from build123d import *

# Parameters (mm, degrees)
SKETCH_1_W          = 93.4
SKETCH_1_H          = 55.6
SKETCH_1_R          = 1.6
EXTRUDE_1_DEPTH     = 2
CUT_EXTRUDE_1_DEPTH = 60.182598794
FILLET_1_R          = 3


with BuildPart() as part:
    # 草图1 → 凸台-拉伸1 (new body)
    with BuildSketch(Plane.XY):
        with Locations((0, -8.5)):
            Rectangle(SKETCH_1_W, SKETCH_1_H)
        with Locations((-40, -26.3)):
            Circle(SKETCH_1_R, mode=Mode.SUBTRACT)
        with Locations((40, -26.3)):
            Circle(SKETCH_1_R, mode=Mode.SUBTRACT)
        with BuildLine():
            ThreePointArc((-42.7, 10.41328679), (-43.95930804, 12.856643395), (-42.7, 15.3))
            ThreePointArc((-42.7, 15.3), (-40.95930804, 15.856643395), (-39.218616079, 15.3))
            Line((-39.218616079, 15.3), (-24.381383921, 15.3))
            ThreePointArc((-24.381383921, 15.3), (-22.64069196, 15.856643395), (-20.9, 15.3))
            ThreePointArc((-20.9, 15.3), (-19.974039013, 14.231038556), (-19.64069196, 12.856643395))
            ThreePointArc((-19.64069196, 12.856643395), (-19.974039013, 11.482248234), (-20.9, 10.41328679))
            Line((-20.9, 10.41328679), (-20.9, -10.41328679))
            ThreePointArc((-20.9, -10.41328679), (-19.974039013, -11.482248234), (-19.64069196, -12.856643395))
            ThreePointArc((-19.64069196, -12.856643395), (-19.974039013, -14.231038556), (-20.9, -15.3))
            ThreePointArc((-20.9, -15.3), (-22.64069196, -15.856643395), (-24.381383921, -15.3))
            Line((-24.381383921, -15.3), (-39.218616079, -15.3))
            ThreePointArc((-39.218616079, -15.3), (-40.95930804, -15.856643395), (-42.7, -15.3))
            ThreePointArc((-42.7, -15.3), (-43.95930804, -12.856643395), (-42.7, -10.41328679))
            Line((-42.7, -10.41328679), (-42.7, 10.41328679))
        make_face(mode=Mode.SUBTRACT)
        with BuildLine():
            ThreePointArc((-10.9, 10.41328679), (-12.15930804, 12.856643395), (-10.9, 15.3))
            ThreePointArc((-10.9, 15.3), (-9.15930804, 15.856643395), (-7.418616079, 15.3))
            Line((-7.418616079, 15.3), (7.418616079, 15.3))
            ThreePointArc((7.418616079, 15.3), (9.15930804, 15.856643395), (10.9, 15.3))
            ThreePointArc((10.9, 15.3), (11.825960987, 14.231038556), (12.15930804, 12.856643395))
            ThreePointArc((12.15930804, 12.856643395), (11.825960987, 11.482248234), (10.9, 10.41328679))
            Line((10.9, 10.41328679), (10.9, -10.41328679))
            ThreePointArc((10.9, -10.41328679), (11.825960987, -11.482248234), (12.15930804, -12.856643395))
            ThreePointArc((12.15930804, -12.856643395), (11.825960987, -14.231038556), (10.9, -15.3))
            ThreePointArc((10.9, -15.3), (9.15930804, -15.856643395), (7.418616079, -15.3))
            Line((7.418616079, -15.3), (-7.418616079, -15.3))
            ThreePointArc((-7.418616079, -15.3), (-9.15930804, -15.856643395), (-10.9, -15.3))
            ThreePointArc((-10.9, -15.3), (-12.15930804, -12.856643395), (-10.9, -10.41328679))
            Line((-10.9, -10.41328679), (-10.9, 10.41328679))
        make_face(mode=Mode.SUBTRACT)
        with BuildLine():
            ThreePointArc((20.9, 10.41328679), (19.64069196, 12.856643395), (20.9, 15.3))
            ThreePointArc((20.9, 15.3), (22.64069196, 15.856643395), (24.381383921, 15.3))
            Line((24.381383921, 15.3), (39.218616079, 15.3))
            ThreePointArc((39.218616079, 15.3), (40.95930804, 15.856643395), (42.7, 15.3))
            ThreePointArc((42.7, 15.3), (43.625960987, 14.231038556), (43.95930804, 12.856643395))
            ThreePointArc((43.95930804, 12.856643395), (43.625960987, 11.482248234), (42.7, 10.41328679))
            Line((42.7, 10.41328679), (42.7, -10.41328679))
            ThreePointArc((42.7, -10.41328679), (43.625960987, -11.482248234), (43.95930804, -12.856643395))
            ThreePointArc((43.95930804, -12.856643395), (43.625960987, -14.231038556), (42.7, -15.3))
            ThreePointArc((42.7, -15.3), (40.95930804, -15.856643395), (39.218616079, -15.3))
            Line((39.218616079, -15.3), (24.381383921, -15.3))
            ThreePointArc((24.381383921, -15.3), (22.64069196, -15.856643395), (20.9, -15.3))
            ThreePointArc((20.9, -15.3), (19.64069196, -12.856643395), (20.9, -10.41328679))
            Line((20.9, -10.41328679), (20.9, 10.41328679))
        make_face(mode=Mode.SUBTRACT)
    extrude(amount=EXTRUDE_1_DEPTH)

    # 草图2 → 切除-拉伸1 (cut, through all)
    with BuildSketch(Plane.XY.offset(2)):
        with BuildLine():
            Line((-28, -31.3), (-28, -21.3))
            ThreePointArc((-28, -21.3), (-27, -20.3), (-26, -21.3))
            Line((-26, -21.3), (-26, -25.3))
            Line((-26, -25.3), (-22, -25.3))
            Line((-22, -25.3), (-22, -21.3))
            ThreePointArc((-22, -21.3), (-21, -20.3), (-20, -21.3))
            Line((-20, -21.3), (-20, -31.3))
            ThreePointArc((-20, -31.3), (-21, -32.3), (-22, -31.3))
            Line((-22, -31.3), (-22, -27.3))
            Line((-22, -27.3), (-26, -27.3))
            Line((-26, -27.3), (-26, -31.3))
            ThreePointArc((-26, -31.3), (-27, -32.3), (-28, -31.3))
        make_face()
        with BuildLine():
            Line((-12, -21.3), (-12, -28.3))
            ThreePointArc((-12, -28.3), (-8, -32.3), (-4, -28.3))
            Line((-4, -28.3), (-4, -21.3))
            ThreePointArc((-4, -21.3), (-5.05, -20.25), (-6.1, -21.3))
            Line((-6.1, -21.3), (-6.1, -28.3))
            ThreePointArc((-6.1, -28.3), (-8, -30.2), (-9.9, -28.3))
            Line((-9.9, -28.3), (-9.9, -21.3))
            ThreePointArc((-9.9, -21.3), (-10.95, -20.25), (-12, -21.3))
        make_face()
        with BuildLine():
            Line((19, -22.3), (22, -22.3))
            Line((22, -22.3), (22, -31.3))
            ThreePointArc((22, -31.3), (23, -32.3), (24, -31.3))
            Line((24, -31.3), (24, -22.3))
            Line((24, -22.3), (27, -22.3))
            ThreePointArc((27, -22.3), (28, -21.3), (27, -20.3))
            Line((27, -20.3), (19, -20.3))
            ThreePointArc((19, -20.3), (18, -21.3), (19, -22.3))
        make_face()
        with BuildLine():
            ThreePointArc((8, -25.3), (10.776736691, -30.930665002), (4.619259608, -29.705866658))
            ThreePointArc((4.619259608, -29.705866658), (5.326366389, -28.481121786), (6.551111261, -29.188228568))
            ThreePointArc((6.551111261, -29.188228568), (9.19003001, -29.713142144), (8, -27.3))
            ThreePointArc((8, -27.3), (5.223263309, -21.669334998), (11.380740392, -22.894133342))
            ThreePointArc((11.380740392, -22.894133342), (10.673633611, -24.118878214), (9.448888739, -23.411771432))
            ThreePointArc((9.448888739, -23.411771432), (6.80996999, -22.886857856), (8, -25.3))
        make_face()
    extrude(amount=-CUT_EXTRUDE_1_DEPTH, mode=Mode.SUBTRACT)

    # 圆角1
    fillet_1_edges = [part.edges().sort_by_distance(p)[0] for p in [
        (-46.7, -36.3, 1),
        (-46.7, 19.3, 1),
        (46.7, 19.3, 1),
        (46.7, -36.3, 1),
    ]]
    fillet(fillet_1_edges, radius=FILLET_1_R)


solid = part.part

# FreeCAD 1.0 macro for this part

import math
import FreeCAD as App
import Part
import Sketcher


def edges_at(feature, points):
    """Names of the edges that pass closest to the given points."""
    edges = feature.Shape.Edges
    near = lambda p: min(range(len(edges)), key=lambda i: edges[i].distToShape(Part.Vertex(*p))[0])
    return sorted({f"Edge{near(p) + 1}" for p in points})


def add_polygon(sketch, points):
    """Adds a closed chain of lines whose ends are joined by coincident constraints."""
    first, n = sketch.GeometryCount, len(points)
    for a, b in zip(points, points[1:] + points[:1]):
        sketch.addGeometry(Part.LineSegment(App.Vector(*a, 0), App.Vector(*b, 0)), False)
    for i in range(n):
        sketch.addConstraint(Sketcher.Constraint("Coincident", first + i, 2, first + (i + 1) % n, 1))

doc = App.newDocument("Part")
body = doc.addObject("PartDesign::Body", "Body")

# Sketch on XY plane
sketch1 = body.newObject("Sketcher::SketchObject", "Sketch")
sketch1.AttachmentSupport = (doc.getObject("XY_Plane"), [""])
sketch1.MapMode = "FlatFace"
add_polygon(sketch1, [(-46.7, 19.3), (-46.7, -36.3), (46.7, -36.3), (46.7, 19.3)])  # lines 0-3
sketch1.addGeometry(Part.Circle(App.Vector(-40, -26.3, 0), App.Vector(0, 0, 1), 1.6), False)  # 4
sketch1.addGeometry(Part.Circle(App.Vector(40, -26.3, 0), App.Vector(0, 0, 1), 1.6), False)  # 5
sketch1.addGeometry(Part.LineSegment(App.Vector(-42.7, -10.4, 0), App.Vector(-42.7, 10.4, 0)), False)  # 6
sketch1.addGeometry(Part.ArcOfCircle(Part.Circle(App.Vector(-41, 12.9, 0), App.Vector(0, 0, 1), 3), math.radians(125), math.radians(235)), False)  # 7
sketch1.addGeometry(Part.ArcOfCircle(Part.Circle(App.Vector(-41, 12.9, 0), App.Vector(0, 0, 1), 3), math.radians(55), math.radians(125)), False)  # 8
sketch1.addGeometry(Part.LineSegment(App.Vector(-39.2, 15.3, 0), App.Vector(-24.4, 15.3, 0)), False)  # 9
sketch1.addGeometry(Part.ArcOfCircle(Part.Circle(App.Vector(-22.6, 12.9, 0), App.Vector(0, 0, 1), 3), math.radians(55), math.radians(125)), False)  # 10
sketch1.addGeometry(Part.ArcOfCircle(Part.Circle(App.Vector(-22.6, 12.9, 0), App.Vector(0, 0, 1), 3), math.radians(0), math.radians(55)), False)  # 11
sketch1.addGeometry(Part.ArcOfCircle(Part.Circle(App.Vector(-22.6, 12.9, 0), App.Vector(0, 0, 1), 3), math.radians(-55), math.radians(0)), False)  # 12
sketch1.addGeometry(Part.LineSegment(App.Vector(-20.9, 10.4, 0), App.Vector(-20.9, -10.4, 0)), False)  # 13
sketch1.addGeometry(Part.ArcOfCircle(Part.Circle(App.Vector(-22.6, -12.9, 0), App.Vector(0, 0, 1), 3), math.radians(0), math.radians(55)), False)  # 14
sketch1.addGeometry(Part.ArcOfCircle(Part.Circle(App.Vector(-22.6, -12.9, 0), App.Vector(0, 0, 1), 3), math.radians(-55), math.radians(0)), False)  # 15
sketch1.addGeometry(Part.ArcOfCircle(Part.Circle(App.Vector(-22.6, -12.9, 0), App.Vector(0, 0, 1), 3), math.radians(-125), math.radians(-55)), False)  # 16
sketch1.addGeometry(Part.LineSegment(App.Vector(-24.4, -15.3, 0), App.Vector(-39.2, -15.3, 0)), False)  # 17
sketch1.addGeometry(Part.ArcOfCircle(Part.Circle(App.Vector(-41, -12.9, 0), App.Vector(0, 0, 1), 3), math.radians(-125), math.radians(-55)), False)  # 18
sketch1.addGeometry(Part.ArcOfCircle(Part.Circle(App.Vector(-41, -12.9, 0), App.Vector(0, 0, 1), 3), math.radians(125), math.radians(235)), False)  # 19
sketch1.addGeometry(Part.LineSegment(App.Vector(-10.9, -10.4, 0), App.Vector(-10.9, 10.4, 0)), False)  # 20
sketch1.addGeometry(Part.ArcOfCircle(Part.Circle(App.Vector(-9.2, 12.9, 0), App.Vector(0, 0, 1), 3), math.radians(125), math.radians(235)), False)  # 21
sketch1.addGeometry(Part.ArcOfCircle(Part.Circle(App.Vector(-9.2, 12.9, 0), App.Vector(0, 0, 1), 3), math.radians(55), math.radians(125)), False)  # 22
sketch1.addGeometry(Part.LineSegment(App.Vector(-7.4, 15.3, 0), App.Vector(7.4, 15.3, 0)), False)  # 23
sketch1.addGeometry(Part.ArcOfCircle(Part.Circle(App.Vector(9.2, 12.9, 0), App.Vector(0, 0, 1), 3), math.radians(55), math.radians(125)), False)  # 24
sketch1.addGeometry(Part.ArcOfCircle(Part.Circle(App.Vector(9.2, 12.9, 0), App.Vector(0, 0, 1), 3), math.radians(0), math.radians(55)), False)  # 25
sketch1.addGeometry(Part.ArcOfCircle(Part.Circle(App.Vector(9.2, 12.9, 0), App.Vector(0, 0, 1), 3), math.radians(-55), math.radians(0)), False)  # 26
sketch1.addGeometry(Part.LineSegment(App.Vector(10.9, 10.4, 0), App.Vector(10.9, -10.4, 0)), False)  # 27
sketch1.addGeometry(Part.ArcOfCircle(Part.Circle(App.Vector(9.2, -12.9, 0), App.Vector(0, 0, 1), 3), math.radians(0), math.radians(55)), False)  # 28
sketch1.addGeometry(Part.ArcOfCircle(Part.Circle(App.Vector(9.2, -12.9, 0), App.Vector(0, 0, 1), 3), math.radians(-55), math.radians(0)), False)  # 29
sketch1.addGeometry(Part.ArcOfCircle(Part.Circle(App.Vector(9.2, -12.9, 0), App.Vector(0, 0, 1), 3), math.radians(-125), math.radians(-55)), False)  # 30
sketch1.addGeometry(Part.LineSegment(App.Vector(7.4, -15.3, 0), App.Vector(-7.4, -15.3, 0)), False)  # 31
sketch1.addGeometry(Part.ArcOfCircle(Part.Circle(App.Vector(-9.2, -12.9, 0), App.Vector(0, 0, 1), 3), math.radians(-125), math.radians(-55)), False)  # 32
sketch1.addGeometry(Part.ArcOfCircle(Part.Circle(App.Vector(-9.2, -12.9, 0), App.Vector(0, 0, 1), 3), math.radians(125), math.radians(235)), False)  # 33
sketch1.addGeometry(Part.LineSegment(App.Vector(20.9, -10.4, 0), App.Vector(20.9, 10.4, 0)), False)  # 34
sketch1.addGeometry(Part.ArcOfCircle(Part.Circle(App.Vector(22.6, 12.9, 0), App.Vector(0, 0, 1), 3), math.radians(125), math.radians(235)), False)  # 35
sketch1.addGeometry(Part.ArcOfCircle(Part.Circle(App.Vector(22.6, 12.9, 0), App.Vector(0, 0, 1), 3), math.radians(55), math.radians(125)), False)  # 36
sketch1.addGeometry(Part.LineSegment(App.Vector(24.4, 15.3, 0), App.Vector(39.2, 15.3, 0)), False)  # 37
sketch1.addGeometry(Part.ArcOfCircle(Part.Circle(App.Vector(41, 12.9, 0), App.Vector(0, 0, 1), 3), math.radians(55), math.radians(125)), False)  # 38
sketch1.addGeometry(Part.ArcOfCircle(Part.Circle(App.Vector(41, 12.9, 0), App.Vector(0, 0, 1), 3), math.radians(0), math.radians(55)), False)  # 39
sketch1.addGeometry(Part.ArcOfCircle(Part.Circle(App.Vector(41, 12.9, 0), App.Vector(0, 0, 1), 3), math.radians(-55), math.radians(0)), False)  # 40
sketch1.addGeometry(Part.LineSegment(App.Vector(42.7, 10.4, 0), App.Vector(42.7, -10.4, 0)), False)  # 41
sketch1.addGeometry(Part.ArcOfCircle(Part.Circle(App.Vector(41, -12.9, 0), App.Vector(0, 0, 1), 3), math.radians(0), math.radians(55)), False)  # 42
sketch1.addGeometry(Part.ArcOfCircle(Part.Circle(App.Vector(41, -12.9, 0), App.Vector(0, 0, 1), 3), math.radians(-55), math.radians(0)), False)  # 43
sketch1.addGeometry(Part.ArcOfCircle(Part.Circle(App.Vector(41, -12.9, 0), App.Vector(0, 0, 1), 3), math.radians(-125), math.radians(-55)), False)  # 44
sketch1.addGeometry(Part.LineSegment(App.Vector(39.2, -15.3, 0), App.Vector(24.4, -15.3, 0)), False)  # 45
sketch1.addGeometry(Part.ArcOfCircle(Part.Circle(App.Vector(22.6, -12.9, 0), App.Vector(0, 0, 1), 3), math.radians(-125), math.radians(-55)), False)  # 46
sketch1.addGeometry(Part.ArcOfCircle(Part.Circle(App.Vector(22.6, -12.9, 0), App.Vector(0, 0, 1), 3), math.radians(125), math.radians(235)), False)  # 47
sketch1.addConstraint(Sketcher.Constraint("Coincident", 6, 2, 7, 2))
sketch1.addConstraint(Sketcher.Constraint("Tangent", 7, 1, 8, 2))
sketch1.addConstraint(Sketcher.Constraint("Coincident", 8, 1, 9, 1))
sketch1.addConstraint(Sketcher.Constraint("Coincident", 9, 2, 10, 2))
sketch1.addConstraint(Sketcher.Constraint("Tangent", 10, 1, 11, 2))
sketch1.addConstraint(Sketcher.Constraint("Tangent", 11, 1, 12, 2))
sketch1.addConstraint(Sketcher.Constraint("Coincident", 12, 1, 13, 1))
sketch1.addConstraint(Sketcher.Constraint("Coincident", 13, 2, 14, 2))
sketch1.addConstraint(Sketcher.Constraint("Tangent", 14, 1, 15, 2))
sketch1.addConstraint(Sketcher.Constraint("Tangent", 15, 1, 16, 2))
sketch1.addConstraint(Sketcher.Constraint("Coincident", 16, 1, 17, 1))
sketch1.addConstraint(Sketcher.Constraint("Coincident", 17, 2, 18, 2))
sketch1.addConstraint(Sketcher.Constraint("Tangent", 18, 1, 19, 2))
sketch1.addConstraint(Sketcher.Constraint("Coincident", 19, 1, 6, 1))
sketch1.addConstraint(Sketcher.Constraint("Coincident", 20, 2, 21, 2))
sketch1.addConstraint(Sketcher.Constraint("Tangent", 21, 1, 22, 2))
sketch1.addConstraint(Sketcher.Constraint("Coincident", 22, 1, 23, 1))
sketch1.addConstraint(Sketcher.Constraint("Coincident", 23, 2, 24, 2))
sketch1.addConstraint(Sketcher.Constraint("Tangent", 24, 1, 25, 2))
sketch1.addConstraint(Sketcher.Constraint("Tangent", 25, 1, 26, 2))
sketch1.addConstraint(Sketcher.Constraint("Coincident", 26, 1, 27, 1))
sketch1.addConstraint(Sketcher.Constraint("Coincident", 27, 2, 28, 2))
sketch1.addConstraint(Sketcher.Constraint("Tangent", 28, 1, 29, 2))
sketch1.addConstraint(Sketcher.Constraint("Tangent", 29, 1, 30, 2))
sketch1.addConstraint(Sketcher.Constraint("Coincident", 30, 1, 31, 1))
sketch1.addConstraint(Sketcher.Constraint("Coincident", 31, 2, 32, 2))
sketch1.addConstraint(Sketcher.Constraint("Tangent", 32, 1, 33, 2))
sketch1.addConstraint(Sketcher.Constraint("Coincident", 33, 1, 20, 1))
sketch1.addConstraint(Sketcher.Constraint("Coincident", 34, 2, 35, 2))
sketch1.addConstraint(Sketcher.Constraint("Tangent", 35, 1, 36, 2))
sketch1.addConstraint(Sketcher.Constraint("Coincident", 36, 1, 37, 1))
sketch1.addConstraint(Sketcher.Constraint("Coincident", 37, 2, 38, 2))
sketch1.addConstraint(Sketcher.Constraint("Tangent", 38, 1, 39, 2))
sketch1.addConstraint(Sketcher.Constraint("Tangent", 39, 1, 40, 2))
sketch1.addConstraint(Sketcher.Constraint("Coincident", 40, 1, 41, 1))
sketch1.addConstraint(Sketcher.Constraint("Coincident", 41, 2, 42, 2))
sketch1.addConstraint(Sketcher.Constraint("Tangent", 42, 1, 43, 2))
sketch1.addConstraint(Sketcher.Constraint("Tangent", 43, 1, 44, 2))
sketch1.addConstraint(Sketcher.Constraint("Coincident", 44, 1, 45, 1))
sketch1.addConstraint(Sketcher.Constraint("Coincident", 45, 2, 46, 2))
sketch1.addConstraint(Sketcher.Constraint("Tangent", 46, 1, 47, 2))
sketch1.addConstraint(Sketcher.Constraint("Coincident", 47, 1, 34, 1))
sketch1.addConstraint(Sketcher.Constraint("Vertical", 0))
sketch1.addConstraint(Sketcher.Constraint("Horizontal", 1))
sketch1.addConstraint(Sketcher.Constraint("Vertical", 2))
sketch1.addConstraint(Sketcher.Constraint("Horizontal", 3))
sketch1.addConstraint(Sketcher.Constraint("Vertical", 6))
sketch1.addConstraint(Sketcher.Constraint("Horizontal", 9))
sketch1.addConstraint(Sketcher.Constraint("Vertical", 13))
sketch1.addConstraint(Sketcher.Constraint("Horizontal", 17))
sketch1.addConstraint(Sketcher.Constraint("Vertical", 20))
sketch1.addConstraint(Sketcher.Constraint("Horizontal", 23))
sketch1.addConstraint(Sketcher.Constraint("Vertical", 27))
sketch1.addConstraint(Sketcher.Constraint("Horizontal", 31))
sketch1.addConstraint(Sketcher.Constraint("Vertical", 34))
sketch1.addConstraint(Sketcher.Constraint("Horizontal", 37))
sketch1.addConstraint(Sketcher.Constraint("Vertical", 41))
sketch1.addConstraint(Sketcher.Constraint("Horizontal", 45))
sketch1.addConstraint(Sketcher.Constraint("Coincident", 12, 3, 10, 3))
sketch1.addConstraint(Sketcher.Constraint("Coincident", 16, 3, 14, 3))
sketch1.addConstraint(Sketcher.Constraint("Coincident", 26, 3, 24, 3))
sketch1.addConstraint(Sketcher.Constraint("Coincident", 30, 3, 28, 3))
sketch1.addConstraint(Sketcher.Constraint("Coincident", 40, 3, 38, 3))
sketch1.addConstraint(Sketcher.Constraint("Coincident", 44, 3, 42, 3))
sketch1.addConstraint(Sketcher.Constraint("Equal", 4, 5))
sketch1.addConstraint(Sketcher.Constraint("Equal", 7, 8))
sketch1.addConstraint(Sketcher.Constraint("Equal", 8, 10))
sketch1.addConstraint(Sketcher.Constraint("Equal", 12, 14))
sketch1.addConstraint(Sketcher.Constraint("Equal", 16, 18))
sketch1.addConstraint(Sketcher.Constraint("Equal", 18, 19))
sketch1.addConstraint(Sketcher.Constraint("Equal", 19, 21))
sketch1.addConstraint(Sketcher.Constraint("Equal", 21, 22))
sketch1.addConstraint(Sketcher.Constraint("Equal", 22, 24))
sketch1.addConstraint(Sketcher.Constraint("Equal", 26, 28))
sketch1.addConstraint(Sketcher.Constraint("Equal", 30, 32))
sketch1.addConstraint(Sketcher.Constraint("Equal", 32, 33))
sketch1.addConstraint(Sketcher.Constraint("Equal", 33, 35))
sketch1.addConstraint(Sketcher.Constraint("Equal", 35, 36))
sketch1.addConstraint(Sketcher.Constraint("Equal", 36, 38))
sketch1.addConstraint(Sketcher.Constraint("Equal", 40, 42))
sketch1.addConstraint(Sketcher.Constraint("Equal", 44, 46))
sketch1.addConstraint(Sketcher.Constraint("Equal", 46, 47))
sketch1.addConstraint(Sketcher.Constraint("Symmetric", 21, 3, 28, 3, -1, 1))
sketch1.addConstraint(Sketcher.Constraint("Symmetric", 24, 3, 32, 3, -1, 1))
sketch1.addConstraint(Sketcher.Constraint("Symmetric", 14, 3, 35, 3, -1, 1))
sketch1.addConstraint(Sketcher.Constraint("Symmetric", 18, 3, 38, 3, -1, 1))
sketch1.addConstraint(Sketcher.Constraint("Symmetric", 7, 3, 42, 3, -1, 1))
sketch1.addConstraint(Sketcher.Constraint("Symmetric", 10, 3, 46, 3, -1, 1))
sketch1.addConstraint(Sketcher.Constraint("Symmetric", 4, 3, 5, 3, -2))
sketch1.addConstraint(Sketcher.Constraint("Symmetric", 21, 3, 24, 3, -2))
sketch1.addConstraint(Sketcher.Constraint("Symmetric", 10, 3, 35, 3, -2))
sketch1.addConstraint(Sketcher.Constraint("Symmetric", 7, 3, 38, 3, -2))
sketch1.addConstraint(Sketcher.Constraint("Horizontal", 8, 3, 10, 3))
sketch1.addConstraint(Sketcher.Constraint("Horizontal", 12, 3, 21, 3))
sketch1.addConstraint(Sketcher.Constraint("Horizontal", 7, 1, 8, 1))
sketch1.addConstraint(Sketcher.Constraint("Horizontal", 9, 2, 10, 1))
sketch1.addConstraint(Sketcher.Constraint("Horizontal", 40, 3, 11, 1))
sketch1.addConstraint(Sketcher.Constraint("Horizontal", 6, 2, 12, 1))
sketch1.addConstraint(Sketcher.Constraint("Horizontal", 47, 3, 14, 1))
sketch1.addConstraint(Sketcher.Constraint("Horizontal", 15, 1, 16, 1))
sketch1.addConstraint(Sketcher.Constraint("Horizontal", 17, 2, 18, 1))
sketch1.addConstraint(Sketcher.Constraint("Horizontal", 12, 1, 20, 2))
sketch1.addConstraint(Sketcher.Constraint("Horizontal", 10, 1, 21, 1))
sketch1.addConstraint(Sketcher.Constraint("Horizontal", 21, 1, 22, 1))
sketch1.addConstraint(Sketcher.Constraint("Horizontal", 23, 2, 24, 1))
sketch1.addConstraint(Sketcher.Constraint("Horizontal", 11, 1, 25, 1))
sketch1.addConstraint(Sketcher.Constraint("Horizontal", 20, 2, 26, 1))
sketch1.addConstraint(Sketcher.Constraint("Horizontal", 14, 1, 28, 1))
sketch1.addConstraint(Sketcher.Constraint("Horizontal", 18, 1, 29, 1))
sketch1.addConstraint(Sketcher.Constraint("Horizontal", 29, 1, 30, 1))
sketch1.addConstraint(Sketcher.Constraint("Horizontal", 31, 2, 32, 1))
sketch1.addConstraint(Sketcher.Constraint("Horizontal", 26, 1, 34, 2))
sketch1.addConstraint(Sketcher.Constraint("Horizontal", 24, 1, 35, 1))
sketch1.addConstraint(Sketcher.Constraint("Horizontal", 35, 1, 36, 1))
sketch1.addConstraint(Sketcher.Constraint("Horizontal", 37, 2, 38, 1))
sketch1.addConstraint(Sketcher.Constraint("Horizontal", 25, 1, 39, 1))
sketch1.addConstraint(Sketcher.Constraint("Horizontal", 34, 2, 40, 1))
sketch1.addConstraint(Sketcher.Constraint("Horizontal", 28, 1, 42, 1))
sketch1.addConstraint(Sketcher.Constraint("Horizontal", 32, 1, 43, 1))
sketch1.addConstraint(Sketcher.Constraint("Horizontal", 43, 1, 44, 1))
sketch1.addConstraint(Sketcher.Constraint("Horizontal", 45, 2, 46, 1))
sketch1.addConstraint(Sketcher.Constraint("Vertical", 6, 2, 7, 1))
sketch1.addConstraint(Sketcher.Constraint("Vertical", 13, 2, 15, 1))
sketch1.addConstraint(Sketcher.Constraint("Equal", 17, 23))
sketch1.addConstraint(Sketcher.Constraint("Radius", 7, 3.0))
sketch1.addConstraint(Sketcher.Constraint("Diameter", 4, 3.2))
sketch1.addConstraint(Sketcher.Constraint("DistanceX", 1, 1, 1, 2, 93.4))
sketch1.addConstraint(Sketcher.Constraint("DistanceY", 0, 2, 0, 1, 55.6))
sketch1.addConstraint(Sketcher.Constraint("DistanceX", 4, 3, -1, 1, 40.0))
sketch1.addConstraint(Sketcher.Constraint("DistanceY", 4, 3, -1, 1, 26.3))
sketch1.addConstraint(Sketcher.Constraint("DistanceX", 0, 2, -1, 1, 46.7))
sketch1.addConstraint(Sketcher.Constraint("DistanceY", 0, 2, -1, 1, 36.3))
sketch1.addConstraint(Sketcher.Constraint("DistanceX", 6, 2, -1, 1, 42.7))
sketch1.addConstraint(Sketcher.Constraint("DistanceY", -1, 1, 7, 1, 15.3))
sketch1.addConstraint(Sketcher.Constraint("DistanceX", 10, 1, -1, 1, 20.9))
sketch1.addConstraint(Sketcher.Constraint("DistanceX", 9, 1, 9, 2, 14.837232))
pad1 = body.newObject("PartDesign::Pad", "Pad")
pad1.Profile = sketch1
pad1.Length = 2

# Sketch on XY plane
sketch2 = body.newObject("Sketcher::SketchObject", "Sketch001")
sketch2.AttachmentSupport = (doc.getObject("XY_Plane"), [""])
sketch2.MapMode = "FlatFace"
sketch2.AttachmentOffset = App.Placement(App.Vector(0, 0, 2), App.Rotation())
sketch2.addGeometry(Part.LineSegment(App.Vector(-28, -21.3, 0), App.Vector(-28, -31.3, 0)), False)
sketch2.addGeometry(Part.ArcOfCircle(Part.Circle(App.Vector(-27, -31.3, 0), App.Vector(0, 0, 1), 1), math.radians(180), math.radians(360)), False)
sketch2.addGeometry(Part.LineSegment(App.Vector(-26, -31.3, 0), App.Vector(-26, -27.3, 0)), False)
sketch2.addGeometry(Part.LineSegment(App.Vector(-26, -27.3, 0), App.Vector(-22, -27.3, 0)), False)
sketch2.addGeometry(Part.LineSegment(App.Vector(-22, -27.3, 0), App.Vector(-22, -31.3, 0)), False)
sketch2.addGeometry(Part.ArcOfCircle(Part.Circle(App.Vector(-21, -31.3, 0), App.Vector(0, 0, 1), 1), math.radians(180), math.radians(360)), False)
sketch2.addGeometry(Part.LineSegment(App.Vector(-20, -31.3, 0), App.Vector(-20, -21.3, 0)), False)
sketch2.addGeometry(Part.ArcOfCircle(Part.Circle(App.Vector(-21, -21.3, 0), App.Vector(0, 0, 1), 1), math.radians(0), math.radians(180)), False)
sketch2.addGeometry(Part.LineSegment(App.Vector(-22, -21.3, 0), App.Vector(-22, -25.3, 0)), False)
sketch2.addGeometry(Part.LineSegment(App.Vector(-22, -25.3, 0), App.Vector(-26, -25.3, 0)), False)
sketch2.addGeometry(Part.LineSegment(App.Vector(-26, -25.3, 0), App.Vector(-26, -21.3, 0)), False)
sketch2.addGeometry(Part.ArcOfCircle(Part.Circle(App.Vector(-27, -21.3, 0), App.Vector(0, 0, 1), 1), math.radians(0), math.radians(180)), False)
sketch2.addGeometry(Part.LineSegment(App.Vector(-12, -21.3, 0), App.Vector(-12, -28.3, 0)), False)
sketch2.addGeometry(Part.ArcOfCircle(Part.Circle(App.Vector(-8, -28.3, 0), App.Vector(0, 0, 1), 4), math.radians(180), math.radians(360)), False)
sketch2.addGeometry(Part.LineSegment(App.Vector(-4, -28.3, 0), App.Vector(-4, -21.3, 0)), False)
sketch2.addGeometry(Part.ArcOfCircle(Part.Circle(App.Vector(-5, -21.3, 0), App.Vector(0, 0, 1), 1.1), math.radians(0), math.radians(180)), False)
sketch2.addGeometry(Part.LineSegment(App.Vector(-6.1, -21.3, 0), App.Vector(-6.1, -28.3, 0)), False)
sketch2.addGeometry(Part.ArcOfCircle(Part.Circle(App.Vector(-8, -28.3, 0), App.Vector(0, 0, 1), 1.9), math.radians(180), math.radians(360)), False)
sketch2.addGeometry(Part.LineSegment(App.Vector(-9.9, -28.3, 0), App.Vector(-9.9, -21.3, 0)), False)
sketch2.addGeometry(Part.ArcOfCircle(Part.Circle(App.Vector(-10.9, -21.3, 0), App.Vector(0, 0, 1), 1.1), math.radians(0), math.radians(180)), False)
sketch2.addGeometry(Part.LineSegment(App.Vector(19, -22.3, 0), App.Vector(22, -22.3, 0)), False)
sketch2.addGeometry(Part.LineSegment(App.Vector(22, -22.3, 0), App.Vector(22, -31.3, 0)), False)
sketch2.addGeometry(Part.ArcOfCircle(Part.Circle(App.Vector(23, -31.3, 0), App.Vector(0, 0, 1), 1), math.radians(180), math.radians(360)), False)
sketch2.addGeometry(Part.LineSegment(App.Vector(24, -31.3, 0), App.Vector(24, -22.3, 0)), False)
sketch2.addGeometry(Part.LineSegment(App.Vector(24, -22.3, 0), App.Vector(27, -22.3, 0)), False)
sketch2.addGeometry(Part.ArcOfCircle(Part.Circle(App.Vector(27, -21.3, 0), App.Vector(0, 0, 1), 1), math.radians(-90), math.radians(90)), False)
sketch2.addGeometry(Part.LineSegment(App.Vector(27, -20.3, 0), App.Vector(19, -20.3, 0)), False)
sketch2.addGeometry(Part.ArcOfCircle(Part.Circle(App.Vector(19, -21.3, 0), App.Vector(0, 0, 1), 1), math.radians(90), math.radians(270)), False)
sketch2.addGeometry(Part.ArcOfCircle(Part.Circle(App.Vector(8, -28.8, 0), App.Vector(0, 0, 1), 3.5), math.radians(-165), math.radians(90)), False)
sketch2.addGeometry(Part.ArcOfCircle(Part.Circle(App.Vector(8, -23.8, 0), App.Vector(0, 0, 1), 1.5), math.radians(15), math.radians(270)), False)
sketch2.addGeometry(Part.ArcOfCircle(Part.Circle(App.Vector(10.4, -23.2, 0), App.Vector(0, 0, 1), 1), math.radians(-165), math.radians(15)), False)
sketch2.addGeometry(Part.ArcOfCircle(Part.Circle(App.Vector(8, -23.8, 0), App.Vector(0, 0, 1), 3.5), math.radians(15), math.radians(270)), False)
sketch2.addGeometry(Part.ArcOfCircle(Part.Circle(App.Vector(8, -28.8, 0), App.Vector(0, 0, 1), 1.5), math.radians(-165), math.radians(90)), False)
sketch2.addGeometry(Part.ArcOfCircle(Part.Circle(App.Vector(5.6, -29.4, 0), App.Vector(0, 0, 1), 1), math.radians(15), math.radians(195)), False)
sketch2.addConstraint(Sketcher.Constraint("Tangent", 0, 2, 1, 1))
sketch2.addConstraint(Sketcher.Constraint("Tangent", 1, 2, 2, 1))
sketch2.addConstraint(Sketcher.Constraint("Coincident", 2, 2, 3, 1))
sketch2.addConstraint(Sketcher.Constraint("Coincident", 3, 2, 4, 1))
sketch2.addConstraint(Sketcher.Constraint("Tangent", 4, 2, 5, 1))
sketch2.addConstraint(Sketcher.Constraint("Tangent", 5, 2, 6, 1))
sketch2.addConstraint(Sketcher.Constraint("Tangent", 6, 2, 7, 1))
sketch2.addConstraint(Sketcher.Constraint("Tangent", 7, 2, 8, 1))
sketch2.addConstraint(Sketcher.Constraint("Coincident", 8, 2, 9, 1))
sketch2.addConstraint(Sketcher.Constraint("Coincident", 9, 2, 10, 1))
sketch2.addConstraint(Sketcher.Constraint("Tangent", 10, 2, 11, 1))
sketch2.addConstraint(Sketcher.Constraint("Tangent", 11, 2, 0, 1))
sketch2.addConstraint(Sketcher.Constraint("Tangent", 12, 2, 13, 1))
sketch2.addConstraint(Sketcher.Constraint("Tangent", 13, 2, 14, 1))
sketch2.addConstraint(Sketcher.Constraint("Tangent", 14, 2, 15, 1))
sketch2.addConstraint(Sketcher.Constraint("Tangent", 15, 2, 16, 1))
sketch2.addConstraint(Sketcher.Constraint("Tangent", 16, 2, 17, 2))
sketch2.addConstraint(Sketcher.Constraint("Tangent", 17, 1, 18, 1))
sketch2.addConstraint(Sketcher.Constraint("Tangent", 18, 2, 19, 1))
sketch2.addConstraint(Sketcher.Constraint("Tangent", 19, 2, 12, 1))
sketch2.addConstraint(Sketcher.Constraint("Coincident", 20, 2, 21, 1))
sketch2.addConstraint(Sketcher.Constraint("Tangent", 21, 2, 22, 1))
sketch2.addConstraint(Sketcher.Constraint("Tangent", 22, 2, 23, 1))
sketch2.addConstraint(Sketcher.Constraint("Coincident", 23, 2, 24, 1))
sketch2.addConstraint(Sketcher.Constraint("Tangent", 24, 2, 25, 1))
sketch2.addConstraint(Sketcher.Constraint("Tangent", 25, 2, 26, 1))
sketch2.addConstraint(Sketcher.Constraint("Tangent", 26, 2, 27, 1))
sketch2.addConstraint(Sketcher.Constraint("Tangent", 27, 2, 20, 1))
sketch2.addConstraint(Sketcher.Constraint("Tangent", 28, 2, 29, 2))
sketch2.addConstraint(Sketcher.Constraint("Tangent", 29, 1, 30, 1))
sketch2.addConstraint(Sketcher.Constraint("Tangent", 30, 2, 31, 1))
sketch2.addConstraint(Sketcher.Constraint("Tangent", 31, 2, 32, 2))
sketch2.addConstraint(Sketcher.Constraint("Tangent", 32, 1, 33, 1))
sketch2.addConstraint(Sketcher.Constraint("Tangent", 33, 2, 28, 1))
sketch2.addConstraint(Sketcher.Constraint("Vertical", 0))
sketch2.addConstraint(Sketcher.Constraint("Vertical", 2))
sketch2.addConstraint(Sketcher.Constraint("Horizontal", 3))
sketch2.addConstraint(Sketcher.Constraint("Vertical", 4))
sketch2.addConstraint(Sketcher.Constraint("Vertical", 6))
sketch2.addConstraint(Sketcher.Constraint("Vertical", 8))
sketch2.addConstraint(Sketcher.Constraint("Horizontal", 9))
sketch2.addConstraint(Sketcher.Constraint("Vertical", 10))
sketch2.addConstraint(Sketcher.Constraint("Vertical", 12))
sketch2.addConstraint(Sketcher.Constraint("Vertical", 14))
sketch2.addConstraint(Sketcher.Constraint("Vertical", 16))
sketch2.addConstraint(Sketcher.Constraint("Vertical", 18))
sketch2.addConstraint(Sketcher.Constraint("Horizontal", 20))
sketch2.addConstraint(Sketcher.Constraint("Vertical", 21))
sketch2.addConstraint(Sketcher.Constraint("Vertical", 23))
sketch2.addConstraint(Sketcher.Constraint("Horizontal", 24))
sketch2.addConstraint(Sketcher.Constraint("Horizontal", 26))
sketch2.addConstraint(Sketcher.Constraint("Coincident", 17, 3, 13, 3))
sketch2.addConstraint(Sketcher.Constraint("Coincident", 31, 3, 29, 3))
sketch2.addConstraint(Sketcher.Constraint("Coincident", 32, 3, 28, 3))
sketch2.addConstraint(Sketcher.Constraint("Equal", 1, 5))
sketch2.addConstraint(Sketcher.Constraint("Equal", 5, 7))
sketch2.addConstraint(Sketcher.Constraint("Equal", 7, 11))
sketch2.addConstraint(Sketcher.Constraint("Equal", 11, 22))
sketch2.addConstraint(Sketcher.Constraint("Equal", 22, 25))
sketch2.addConstraint(Sketcher.Constraint("Equal", 25, 27))
sketch2.addConstraint(Sketcher.Constraint("Equal", 27, 30))
sketch2.addConstraint(Sketcher.Constraint("Equal", 28, 31))
sketch2.addConstraint(Sketcher.Constraint("Symmetric", 11, 3, 25, 3, -2))
sketch2.addConstraint(Sketcher.Constraint("Symmetric", 4, 2, 21, 2, -2))
sketch2.addConstraint(Sketcher.Constraint("Horizontal", 1, 3, 5, 3))
sketch2.addConstraint(Sketcher.Constraint("Horizontal", 7, 3, 11, 3))
sketch2.addConstraint(Sketcher.Constraint("Horizontal", 11, 3, 15, 3))
sketch2.addConstraint(Sketcher.Constraint("Horizontal", 15, 3, 19, 3))
sketch2.addConstraint(Sketcher.Constraint("Horizontal", 9, 2, 28, 2))
sketch2.addConstraint(Sketcher.Constraint("Horizontal", 3, 2, 31, 2))
sketch2.addConstraint(Sketcher.Constraint("Vertical", 28, 3, 29, 3))
sketch2.addConstraint(Sketcher.Constraint("Equal", 20, 24))
sketch2.addConstraint(Sketcher.Constraint("Equal", 9, 2))
sketch2.addConstraint(Sketcher.Constraint("Equal", 4, 8))
sketch2.addConstraint(Sketcher.Constraint("Radius", 1, 1.0))
sketch2.addConstraint(Sketcher.Constraint("Radius", 13, 4.0))
sketch2.addConstraint(Sketcher.Constraint("Radius", 17, 1.9))
sketch2.addConstraint(Sketcher.Constraint("Radius", 28, 3.5))
sketch2.addConstraint(Sketcher.Constraint("DistanceX", 3, 1, 3, 2, 4.0))
sketch2.addConstraint(Sketcher.Constraint("DistanceY", 12, 2, 12, 1, 7.0))
sketch2.addConstraint(Sketcher.Constraint("DistanceX", 1, 3, -1, 1, 27.0))
sketch2.addConstraint(Sketcher.Constraint("DistanceX", 13, 3, -1, 1, 8.0))
sketch2.addConstraint(Sketcher.Constraint("DistanceX", -1, 1, 28, 3, 8.0))
sketch2.addConstraint(Sketcher.Constraint("DistanceY", 1, 3, -1, 1, 31.3))
sketch2.addConstraint(Sketcher.Constraint("DistanceX", -1, 1, 29, 1, 9.448889))
sketch2.addConstraint(Sketcher.Constraint("DistanceX", -1, 1, 32, 1, 6.551111))
pocket1 = body.newObject("PartDesign::Pocket", "Pocket")
pocket1.Profile = sketch2
pocket1.Type = "ThroughAll"
doc.recompute()

fillet = body.newObject("PartDesign::Fillet", "Fillet")
fillet.Base = (pocket1, edges_at(pocket1, [
    (-46.7, -36.3, 1),
    (-46.7, 19.3, 1),
    (46.7, 19.3, 1),
    (46.7, -36.3, 1),
]))
fillet.Radius = 3

doc.recompute()
